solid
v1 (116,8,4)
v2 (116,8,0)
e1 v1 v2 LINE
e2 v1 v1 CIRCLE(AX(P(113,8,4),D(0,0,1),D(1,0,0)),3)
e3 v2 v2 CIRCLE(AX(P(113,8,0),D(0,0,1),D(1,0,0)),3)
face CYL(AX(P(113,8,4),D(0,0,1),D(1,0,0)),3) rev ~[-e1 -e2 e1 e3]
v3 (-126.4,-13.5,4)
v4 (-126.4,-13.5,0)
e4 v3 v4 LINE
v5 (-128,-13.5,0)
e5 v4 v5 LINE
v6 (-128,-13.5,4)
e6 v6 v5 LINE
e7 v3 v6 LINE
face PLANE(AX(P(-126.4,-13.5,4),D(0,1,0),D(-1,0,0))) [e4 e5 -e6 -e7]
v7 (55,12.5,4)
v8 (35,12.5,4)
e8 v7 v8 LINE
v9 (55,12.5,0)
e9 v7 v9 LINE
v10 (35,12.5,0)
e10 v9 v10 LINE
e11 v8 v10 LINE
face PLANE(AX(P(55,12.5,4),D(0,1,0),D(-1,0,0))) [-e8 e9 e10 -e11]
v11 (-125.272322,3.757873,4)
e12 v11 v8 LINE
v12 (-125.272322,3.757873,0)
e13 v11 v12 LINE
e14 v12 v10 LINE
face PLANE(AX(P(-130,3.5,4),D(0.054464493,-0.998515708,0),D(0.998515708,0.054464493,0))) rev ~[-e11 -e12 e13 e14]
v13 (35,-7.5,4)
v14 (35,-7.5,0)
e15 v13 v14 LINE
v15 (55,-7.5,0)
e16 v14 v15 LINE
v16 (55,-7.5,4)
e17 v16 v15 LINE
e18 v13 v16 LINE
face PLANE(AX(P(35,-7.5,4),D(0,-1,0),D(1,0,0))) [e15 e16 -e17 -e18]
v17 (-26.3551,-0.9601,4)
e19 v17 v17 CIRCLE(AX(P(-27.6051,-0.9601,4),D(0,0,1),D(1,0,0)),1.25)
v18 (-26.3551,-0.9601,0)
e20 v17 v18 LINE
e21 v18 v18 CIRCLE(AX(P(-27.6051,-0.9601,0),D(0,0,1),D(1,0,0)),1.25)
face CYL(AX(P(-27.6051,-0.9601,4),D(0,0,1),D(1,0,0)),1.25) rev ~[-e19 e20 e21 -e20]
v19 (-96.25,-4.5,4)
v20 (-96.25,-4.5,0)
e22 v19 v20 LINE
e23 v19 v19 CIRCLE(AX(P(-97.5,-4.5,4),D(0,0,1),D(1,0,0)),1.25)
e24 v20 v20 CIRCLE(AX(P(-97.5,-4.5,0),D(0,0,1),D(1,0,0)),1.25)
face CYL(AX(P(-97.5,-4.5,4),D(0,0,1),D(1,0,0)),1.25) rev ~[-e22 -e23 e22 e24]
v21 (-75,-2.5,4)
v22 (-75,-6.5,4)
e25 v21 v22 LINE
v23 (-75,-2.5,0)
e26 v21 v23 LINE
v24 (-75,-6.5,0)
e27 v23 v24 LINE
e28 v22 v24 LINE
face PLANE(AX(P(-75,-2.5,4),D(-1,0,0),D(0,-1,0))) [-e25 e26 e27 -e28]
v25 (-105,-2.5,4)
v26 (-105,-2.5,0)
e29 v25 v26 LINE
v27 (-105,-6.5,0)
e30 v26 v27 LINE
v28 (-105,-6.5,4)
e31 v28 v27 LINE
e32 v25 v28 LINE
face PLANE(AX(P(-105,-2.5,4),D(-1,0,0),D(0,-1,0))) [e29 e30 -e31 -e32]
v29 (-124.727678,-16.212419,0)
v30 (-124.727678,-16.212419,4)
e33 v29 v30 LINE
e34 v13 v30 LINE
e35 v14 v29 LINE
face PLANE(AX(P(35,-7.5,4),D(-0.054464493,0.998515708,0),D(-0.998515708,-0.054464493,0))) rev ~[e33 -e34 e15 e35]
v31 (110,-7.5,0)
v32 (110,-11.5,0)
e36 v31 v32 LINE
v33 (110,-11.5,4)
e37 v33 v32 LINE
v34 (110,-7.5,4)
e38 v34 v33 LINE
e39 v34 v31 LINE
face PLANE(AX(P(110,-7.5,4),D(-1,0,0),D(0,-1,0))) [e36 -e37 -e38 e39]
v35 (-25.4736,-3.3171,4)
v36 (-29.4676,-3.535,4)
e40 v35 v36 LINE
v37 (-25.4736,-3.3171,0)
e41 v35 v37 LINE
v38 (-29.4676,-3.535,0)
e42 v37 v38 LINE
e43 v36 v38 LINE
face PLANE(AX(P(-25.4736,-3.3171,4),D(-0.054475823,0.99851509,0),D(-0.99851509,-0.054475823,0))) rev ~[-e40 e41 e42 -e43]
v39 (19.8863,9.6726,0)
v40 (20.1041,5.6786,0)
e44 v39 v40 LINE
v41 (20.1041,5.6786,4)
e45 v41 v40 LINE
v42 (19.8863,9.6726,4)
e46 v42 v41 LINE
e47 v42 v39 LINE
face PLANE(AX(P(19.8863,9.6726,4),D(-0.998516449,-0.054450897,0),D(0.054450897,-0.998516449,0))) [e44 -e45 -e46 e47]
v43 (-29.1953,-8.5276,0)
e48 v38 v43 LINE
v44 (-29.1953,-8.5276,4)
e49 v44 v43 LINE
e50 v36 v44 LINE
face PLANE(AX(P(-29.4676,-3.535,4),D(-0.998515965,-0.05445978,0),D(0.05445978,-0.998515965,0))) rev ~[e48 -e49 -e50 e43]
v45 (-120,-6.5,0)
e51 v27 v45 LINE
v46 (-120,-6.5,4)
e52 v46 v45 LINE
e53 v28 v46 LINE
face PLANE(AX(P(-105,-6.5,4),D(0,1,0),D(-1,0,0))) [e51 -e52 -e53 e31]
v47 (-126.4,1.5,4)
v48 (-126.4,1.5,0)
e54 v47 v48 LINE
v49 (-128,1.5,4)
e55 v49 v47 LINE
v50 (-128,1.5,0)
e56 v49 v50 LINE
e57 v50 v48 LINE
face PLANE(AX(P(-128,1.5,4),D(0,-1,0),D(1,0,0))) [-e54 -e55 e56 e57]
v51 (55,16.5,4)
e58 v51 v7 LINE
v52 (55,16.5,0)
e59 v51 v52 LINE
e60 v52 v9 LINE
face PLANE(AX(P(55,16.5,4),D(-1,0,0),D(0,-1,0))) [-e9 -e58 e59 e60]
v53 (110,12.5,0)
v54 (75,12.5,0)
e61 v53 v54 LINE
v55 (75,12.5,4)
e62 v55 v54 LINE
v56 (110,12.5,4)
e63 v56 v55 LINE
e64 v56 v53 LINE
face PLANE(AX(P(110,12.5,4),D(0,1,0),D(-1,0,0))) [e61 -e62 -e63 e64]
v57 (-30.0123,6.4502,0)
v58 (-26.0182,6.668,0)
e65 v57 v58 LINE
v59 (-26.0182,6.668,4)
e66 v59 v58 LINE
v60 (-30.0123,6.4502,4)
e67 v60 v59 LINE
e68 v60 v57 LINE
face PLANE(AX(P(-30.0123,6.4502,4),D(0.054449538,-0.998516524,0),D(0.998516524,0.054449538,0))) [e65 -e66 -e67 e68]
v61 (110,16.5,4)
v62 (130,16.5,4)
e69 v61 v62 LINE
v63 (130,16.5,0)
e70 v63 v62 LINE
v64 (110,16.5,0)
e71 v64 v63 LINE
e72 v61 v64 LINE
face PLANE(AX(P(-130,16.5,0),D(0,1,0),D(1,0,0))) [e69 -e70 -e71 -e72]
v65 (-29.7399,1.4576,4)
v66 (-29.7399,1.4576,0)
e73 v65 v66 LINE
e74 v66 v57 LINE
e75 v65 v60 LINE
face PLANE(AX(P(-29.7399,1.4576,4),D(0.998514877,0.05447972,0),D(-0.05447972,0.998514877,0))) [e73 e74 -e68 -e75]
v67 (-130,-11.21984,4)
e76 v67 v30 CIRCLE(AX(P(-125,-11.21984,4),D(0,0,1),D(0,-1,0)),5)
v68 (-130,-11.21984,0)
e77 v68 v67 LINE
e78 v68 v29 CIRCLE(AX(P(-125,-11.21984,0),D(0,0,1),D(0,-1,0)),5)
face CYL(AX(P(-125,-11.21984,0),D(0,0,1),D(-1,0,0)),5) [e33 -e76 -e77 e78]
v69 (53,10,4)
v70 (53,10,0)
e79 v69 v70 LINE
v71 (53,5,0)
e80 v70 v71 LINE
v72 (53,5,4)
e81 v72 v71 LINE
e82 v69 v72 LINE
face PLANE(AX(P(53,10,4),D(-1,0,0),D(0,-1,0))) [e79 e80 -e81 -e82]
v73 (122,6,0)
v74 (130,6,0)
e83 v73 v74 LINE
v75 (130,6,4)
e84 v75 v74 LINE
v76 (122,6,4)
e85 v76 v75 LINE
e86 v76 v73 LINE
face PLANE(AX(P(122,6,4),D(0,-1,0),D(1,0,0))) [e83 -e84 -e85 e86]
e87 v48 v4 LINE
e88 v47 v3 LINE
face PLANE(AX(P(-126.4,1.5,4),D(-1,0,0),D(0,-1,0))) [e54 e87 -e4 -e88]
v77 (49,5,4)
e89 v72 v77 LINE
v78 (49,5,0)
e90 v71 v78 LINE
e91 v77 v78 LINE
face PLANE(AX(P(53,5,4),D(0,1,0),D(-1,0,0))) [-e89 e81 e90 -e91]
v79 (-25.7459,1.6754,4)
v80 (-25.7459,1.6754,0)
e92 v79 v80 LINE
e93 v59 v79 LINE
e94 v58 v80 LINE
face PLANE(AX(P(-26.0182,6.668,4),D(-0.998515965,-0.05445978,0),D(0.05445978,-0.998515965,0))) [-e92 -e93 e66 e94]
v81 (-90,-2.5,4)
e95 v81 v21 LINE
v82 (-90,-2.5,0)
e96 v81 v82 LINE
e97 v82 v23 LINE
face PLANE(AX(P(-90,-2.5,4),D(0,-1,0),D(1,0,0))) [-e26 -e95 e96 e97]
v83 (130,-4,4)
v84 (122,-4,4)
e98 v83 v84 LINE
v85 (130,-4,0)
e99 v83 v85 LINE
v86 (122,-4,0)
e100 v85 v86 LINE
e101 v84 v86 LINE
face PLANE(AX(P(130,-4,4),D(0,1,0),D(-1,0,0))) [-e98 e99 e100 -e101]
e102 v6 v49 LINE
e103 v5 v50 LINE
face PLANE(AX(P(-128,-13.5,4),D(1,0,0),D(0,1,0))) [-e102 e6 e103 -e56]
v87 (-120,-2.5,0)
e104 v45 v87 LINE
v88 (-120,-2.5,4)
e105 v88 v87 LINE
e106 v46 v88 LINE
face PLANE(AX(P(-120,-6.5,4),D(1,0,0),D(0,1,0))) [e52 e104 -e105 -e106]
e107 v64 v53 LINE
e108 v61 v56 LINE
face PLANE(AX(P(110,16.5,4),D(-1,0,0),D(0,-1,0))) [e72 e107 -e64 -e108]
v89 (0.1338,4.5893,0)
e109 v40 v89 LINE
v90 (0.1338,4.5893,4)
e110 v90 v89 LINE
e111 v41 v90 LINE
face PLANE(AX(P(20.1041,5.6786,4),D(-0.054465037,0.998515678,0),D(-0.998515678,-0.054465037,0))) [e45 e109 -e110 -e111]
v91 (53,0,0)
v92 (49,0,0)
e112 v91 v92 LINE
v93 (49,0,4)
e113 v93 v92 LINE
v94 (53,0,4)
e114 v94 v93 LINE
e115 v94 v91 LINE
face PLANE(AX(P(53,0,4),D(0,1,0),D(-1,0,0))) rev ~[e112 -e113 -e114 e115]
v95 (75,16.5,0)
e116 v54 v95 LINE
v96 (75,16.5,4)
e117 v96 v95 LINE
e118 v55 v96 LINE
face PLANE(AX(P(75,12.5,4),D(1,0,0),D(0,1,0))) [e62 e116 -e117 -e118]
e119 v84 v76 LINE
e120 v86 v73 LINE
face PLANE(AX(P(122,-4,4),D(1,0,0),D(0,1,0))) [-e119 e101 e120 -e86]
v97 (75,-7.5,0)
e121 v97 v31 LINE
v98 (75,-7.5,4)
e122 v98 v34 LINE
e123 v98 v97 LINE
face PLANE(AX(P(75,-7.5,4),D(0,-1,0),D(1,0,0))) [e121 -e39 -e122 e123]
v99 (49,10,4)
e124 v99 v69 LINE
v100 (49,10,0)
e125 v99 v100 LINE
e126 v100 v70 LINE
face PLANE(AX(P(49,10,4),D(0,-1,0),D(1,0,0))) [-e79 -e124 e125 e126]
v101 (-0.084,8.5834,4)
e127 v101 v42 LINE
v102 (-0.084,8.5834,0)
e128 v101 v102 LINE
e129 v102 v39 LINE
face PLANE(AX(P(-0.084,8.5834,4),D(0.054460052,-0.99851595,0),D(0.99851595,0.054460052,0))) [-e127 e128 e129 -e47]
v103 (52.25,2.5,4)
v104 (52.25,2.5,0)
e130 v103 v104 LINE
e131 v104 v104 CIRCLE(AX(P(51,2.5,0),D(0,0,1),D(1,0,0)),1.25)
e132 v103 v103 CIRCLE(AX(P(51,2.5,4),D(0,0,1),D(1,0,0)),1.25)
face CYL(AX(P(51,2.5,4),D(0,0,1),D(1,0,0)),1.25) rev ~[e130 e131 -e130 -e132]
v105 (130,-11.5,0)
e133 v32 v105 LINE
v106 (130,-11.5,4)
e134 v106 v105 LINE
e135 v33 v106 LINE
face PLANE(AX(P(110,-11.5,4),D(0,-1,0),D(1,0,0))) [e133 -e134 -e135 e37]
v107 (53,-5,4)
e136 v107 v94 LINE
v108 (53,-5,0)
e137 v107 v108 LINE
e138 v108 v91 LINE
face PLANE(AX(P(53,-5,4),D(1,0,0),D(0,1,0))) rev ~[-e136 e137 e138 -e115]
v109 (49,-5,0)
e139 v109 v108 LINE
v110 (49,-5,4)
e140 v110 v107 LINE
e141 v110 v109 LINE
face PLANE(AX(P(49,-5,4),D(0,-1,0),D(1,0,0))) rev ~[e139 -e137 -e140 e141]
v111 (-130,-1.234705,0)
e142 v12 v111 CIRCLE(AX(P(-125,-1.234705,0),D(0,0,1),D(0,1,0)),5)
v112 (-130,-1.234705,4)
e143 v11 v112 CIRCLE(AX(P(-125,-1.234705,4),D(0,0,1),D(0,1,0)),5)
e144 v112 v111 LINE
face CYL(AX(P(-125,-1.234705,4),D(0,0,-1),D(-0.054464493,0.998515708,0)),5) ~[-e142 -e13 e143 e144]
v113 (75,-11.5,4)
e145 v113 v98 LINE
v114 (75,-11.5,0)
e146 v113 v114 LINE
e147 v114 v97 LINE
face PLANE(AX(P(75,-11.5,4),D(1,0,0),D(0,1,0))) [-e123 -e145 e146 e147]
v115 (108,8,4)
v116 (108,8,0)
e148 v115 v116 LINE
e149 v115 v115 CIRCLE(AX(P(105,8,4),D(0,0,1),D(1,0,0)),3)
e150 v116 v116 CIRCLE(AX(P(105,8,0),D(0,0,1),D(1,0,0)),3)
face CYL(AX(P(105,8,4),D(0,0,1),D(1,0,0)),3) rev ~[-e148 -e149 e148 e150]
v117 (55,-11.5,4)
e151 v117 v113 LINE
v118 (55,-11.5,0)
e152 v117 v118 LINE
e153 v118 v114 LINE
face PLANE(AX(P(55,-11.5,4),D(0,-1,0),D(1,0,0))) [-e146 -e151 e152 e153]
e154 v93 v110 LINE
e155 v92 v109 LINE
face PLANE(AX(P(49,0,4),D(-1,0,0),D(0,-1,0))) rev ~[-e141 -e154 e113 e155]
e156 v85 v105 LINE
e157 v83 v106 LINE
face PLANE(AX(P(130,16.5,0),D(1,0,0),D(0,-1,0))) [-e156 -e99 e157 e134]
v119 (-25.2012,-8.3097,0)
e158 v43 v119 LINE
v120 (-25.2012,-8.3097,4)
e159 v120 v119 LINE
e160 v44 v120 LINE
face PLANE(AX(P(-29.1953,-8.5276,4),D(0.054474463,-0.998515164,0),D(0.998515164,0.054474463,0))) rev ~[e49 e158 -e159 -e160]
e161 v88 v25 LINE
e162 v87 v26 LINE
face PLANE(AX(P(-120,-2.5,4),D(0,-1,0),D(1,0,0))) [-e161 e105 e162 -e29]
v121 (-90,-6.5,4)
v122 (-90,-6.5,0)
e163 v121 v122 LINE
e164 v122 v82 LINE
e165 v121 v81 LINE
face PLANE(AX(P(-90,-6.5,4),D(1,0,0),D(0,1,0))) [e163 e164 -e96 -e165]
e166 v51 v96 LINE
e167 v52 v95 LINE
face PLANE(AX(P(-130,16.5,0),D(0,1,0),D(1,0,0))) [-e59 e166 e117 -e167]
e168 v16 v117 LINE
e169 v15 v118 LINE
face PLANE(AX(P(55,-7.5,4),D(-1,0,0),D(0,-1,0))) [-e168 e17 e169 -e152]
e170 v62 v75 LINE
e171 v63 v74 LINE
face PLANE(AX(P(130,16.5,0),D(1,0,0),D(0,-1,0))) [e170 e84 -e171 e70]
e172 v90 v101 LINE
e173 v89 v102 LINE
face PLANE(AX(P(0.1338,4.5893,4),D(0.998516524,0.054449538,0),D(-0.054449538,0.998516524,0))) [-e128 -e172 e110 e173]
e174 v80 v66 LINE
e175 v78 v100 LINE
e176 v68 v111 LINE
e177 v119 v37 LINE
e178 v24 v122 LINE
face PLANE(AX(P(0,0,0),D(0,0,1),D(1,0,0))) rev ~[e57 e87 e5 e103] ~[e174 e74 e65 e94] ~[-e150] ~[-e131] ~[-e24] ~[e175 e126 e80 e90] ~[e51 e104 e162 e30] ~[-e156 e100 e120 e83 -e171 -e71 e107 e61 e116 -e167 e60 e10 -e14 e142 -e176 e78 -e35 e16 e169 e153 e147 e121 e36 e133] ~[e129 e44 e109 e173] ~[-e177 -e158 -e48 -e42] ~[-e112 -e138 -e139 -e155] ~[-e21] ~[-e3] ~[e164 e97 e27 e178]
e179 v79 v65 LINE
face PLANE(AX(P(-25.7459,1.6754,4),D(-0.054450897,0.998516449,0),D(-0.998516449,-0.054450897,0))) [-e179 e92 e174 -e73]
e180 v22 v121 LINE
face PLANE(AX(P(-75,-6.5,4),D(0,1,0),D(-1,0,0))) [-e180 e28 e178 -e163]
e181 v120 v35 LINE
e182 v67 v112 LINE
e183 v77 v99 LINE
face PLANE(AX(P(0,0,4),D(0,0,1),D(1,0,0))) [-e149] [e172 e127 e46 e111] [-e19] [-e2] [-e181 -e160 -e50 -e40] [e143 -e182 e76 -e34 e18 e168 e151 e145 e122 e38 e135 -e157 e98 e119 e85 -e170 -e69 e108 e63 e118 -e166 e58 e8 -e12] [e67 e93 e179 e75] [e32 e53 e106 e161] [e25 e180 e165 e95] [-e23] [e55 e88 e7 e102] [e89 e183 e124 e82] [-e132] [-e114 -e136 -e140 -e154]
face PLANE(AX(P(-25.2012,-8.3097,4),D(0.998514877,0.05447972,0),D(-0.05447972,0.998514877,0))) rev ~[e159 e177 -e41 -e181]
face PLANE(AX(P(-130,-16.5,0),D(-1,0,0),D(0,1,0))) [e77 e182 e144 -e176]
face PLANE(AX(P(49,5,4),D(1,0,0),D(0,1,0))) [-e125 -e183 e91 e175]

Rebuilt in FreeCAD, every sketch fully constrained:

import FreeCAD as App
import Part
import Sketcher
Q = App.Units.Quantity


def edges_at(feature, points):
    """Names of the edges that pass closest to the given points."""
    edges = feature.Shape.Edges
    near = lambda p: min(range(len(edges)), key=lambda i: edges[i].distToShape(Part.Vertex(*p))[0])
    return sorted({f"Edge{near(p) + 1}" for p in points})

doc = App.newDocument("Part")
body = doc.addObject("PartDesign::Body", "Body")

# Sketch on XY plane
sketch1 = doc.addObject("Sketcher::SketchObject", "Sketch")
body.addObject(sketch1)
sketch1.AttachmentSupport = (doc.XY_Plane, [""])
sketch1.MapMode = "FlatFace"
sketch1.addGeometry([
    Part.LineSegment(App.Vector(130, 16, 0), App.Vector(-130, 16, 0)),
    Part.LineSegment(App.Vector(-130, 16, 0), App.Vector(-130, -16, 0)),
    Part.LineSegment(App.Vector(-130, -16, 0), App.Vector(130, -16, 0)),
    Part.LineSegment(App.Vector(130, -16, 0), App.Vector(130, 16, 0)),
], False)
sketch1.addConstraint([
    Sketcher.Constraint("Coincident", 0, 2, 1, 1),
    Sketcher.Constraint("Coincident", 1, 2, 2, 1),
    Sketcher.Constraint("Coincident", 2, 2, 3, 1),
    Sketcher.Constraint("Coincident", 3, 2, 0, 1),
    Sketcher.Constraint("Horizontal", 0),
    Sketcher.Constraint("Vertical", 1),
    Sketcher.Constraint("Horizontal", 2),
    Sketcher.Constraint("Vertical", 3),
    Sketcher.Constraint("Symmetric", 0, 2, 2, 2, -1, 1),
    Sketcher.Constraint("DistanceX", 0, 2, 0, 1, Q("260 mm")),
    Sketcher.Constraint("DistanceY", 1, 2, 1, 1, Q("33 mm")),
])
pad1 = doc.addObject("PartDesign::Pad", "Pad")
body.addObject(pad1)
pad1.Profile = sketch1
pad1.Length = 4

# Sketch on XY plane
sketch2 = doc.addObject("Sketcher::SketchObject", "Sketch001")
body.addObject(sketch2)
sketch2.AttachmentSupport = (doc.XY_Plane, [""])
sketch2.MapMode = "FlatFace"
sketch2.AttachmentOffset = App.Placement(App.Vector(0, 0, 4), App.Rotation())
sketch2.addGeometry([
    Part.LineSegment(App.Vector(130, -16.5, 0), App.Vector(130, -11.5, 0)),  # 0
    Part.LineSegment(App.Vector(130, -11.5, 0), App.Vector(110, -11.5, 0)),  # 1
    Part.LineSegment(App.Vector(110, -11.5, 0), App.Vector(110, -7.5, 0)),  # 2
    Part.LineSegment(App.Vector(110, -7.5, 0), App.Vector(75, -7.5, 0)),  # 3
    Part.LineSegment(App.Vector(75, -7.5, 0), App.Vector(75, -11.5, 0)),  # 4
    Part.LineSegment(App.Vector(75, -11.5, 0), App.Vector(55, -11.5, 0)),  # 5
    Part.LineSegment(App.Vector(55, -11.5, 0), App.Vector(55, -7.5, 0)),  # 6
    Part.LineSegment(App.Vector(55, -7.5, 0), App.Vector(35, -7.5, 0)),  # 7
    Part.LineSegment(App.Vector(35, -7.5, 0), App.Vector(35, -16.5, 0)),  # 8
    Part.LineSegment(App.Vector(35, -16.5, 0), App.Vector(130, -16.5, 0)),  # 9
    Part.LineSegment(App.Vector(110, 12.5, 0), App.Vector(110, 16.5, 0)),  # 10
    Part.LineSegment(App.Vector(110, 16.5, 0), App.Vector(75, 16.5, 0)),  # 11
    Part.LineSegment(App.Vector(75, 16.5, 0), App.Vector(75, 12.5, 0)),  # 12
    Part.LineSegment(App.Vector(75, 12.5, 0), App.Vector(110, 12.5, 0)),  # 13
    Part.LineSegment(App.Vector(55, 12.5, 0), App.Vector(55, 16.5, 0)),  # 14
    Part.LineSegment(App.Vector(55, 16.5, 0), App.Vector(-130, 16.5, 0)),  # 15
    Part.LineSegment(App.Vector(-130, 16.5, 0), App.Vector(-130, 12.5, 0)),  # 16
    Part.LineSegment(App.Vector(-130, 12.5, 0), App.Vector(55, 12.5, 0)),  # 17
], False)
sketch2.addConstraint([
    Sketcher.Constraint("Coincident", 0, 2, 1, 1),
    Sketcher.Constraint("Coincident", 1, 2, 2, 1),
    Sketcher.Constraint("Coincident", 2, 2, 3, 1),
    Sketcher.Constraint("Coincident", 3, 2, 4, 1),
    Sketcher.Constraint("Coincident", 4, 2, 5, 1),
    Sketcher.Constraint("Coincident", 5, 2, 6, 1),
    Sketcher.Constraint("Coincident", 6, 2, 7, 1),
    Sketcher.Constraint("Coincident", 7, 2, 8, 1),
    Sketcher.Constraint("Coincident", 8, 2, 9, 1),
    Sketcher.Constraint("Coincident", 9, 2, 0, 1),
    Sketcher.Constraint("Coincident", 10, 2, 11, 1),
    Sketcher.Constraint("Coincident", 11, 2, 12, 1),
    Sketcher.Constraint("Coincident", 12, 2, 13, 1),
    Sketcher.Constraint("Coincident", 13, 2, 10, 1),
    Sketcher.Constraint("Coincident", 14, 2, 15, 1),
    Sketcher.Constraint("Coincident", 15, 2, 16, 1),
    Sketcher.Constraint("Coincident", 16, 2, 17, 1),
    Sketcher.Constraint("Coincident", 17, 2, 14, 1),
    Sketcher.Constraint("Vertical", 0),
    Sketcher.Constraint("Horizontal", 1),
    Sketcher.Constraint("Vertical", 2),
    Sketcher.Constraint("Horizontal", 3),
    Sketcher.Constraint("Vertical", 4),
    Sketcher.Constraint("Horizontal", 5),
    Sketcher.Constraint("Vertical", 6),
    Sketcher.Constraint("Horizontal", 7),
    Sketcher.Constraint("Vertical", 8),
    Sketcher.Constraint("Horizontal", 9),
    Sketcher.Constraint("Vertical", 10),
    Sketcher.Constraint("Horizontal", 11),
    Sketcher.Constraint("Vertical", 12),
    Sketcher.Constraint("Horizontal", 13),
    Sketcher.Constraint("Vertical", 14),
    Sketcher.Constraint("Horizontal", 15),
    Sketcher.Constraint("Vertical", 16),
    Sketcher.Constraint("Horizontal", 17),
    Sketcher.Constraint("Symmetric", 9, 2, 15, 2, -1, 1),
    Sketcher.Constraint("Horizontal", 1, 2, 4, 2),
    Sketcher.Constraint("Horizontal", 3, 2, 6, 2),
    Sketcher.Constraint("Horizontal", 11, 2, 14, 2),
    Sketcher.Constraint("Horizontal", 13, 2, 16, 2),
    Sketcher.Constraint("Vertical", 2, 2, 10, 2),
    Sketcher.Constraint("Vertical", 4, 2, 11, 2),
    Sketcher.Constraint("Vertical", 6, 2, 14, 2),
    Sketcher.Constraint("Equal", 1, 5),
    Sketcher.Constraint("Equal", 5, 7),
    Sketcher.Constraint("Equal", 6, 10),
    Sketcher.Constraint("DistanceX", 1, 2, 1, 1, Q("20 mm")),
    Sketcher.Constraint("DistanceX", 3, 2, 3, 1, Q("35 mm")),
    Sketcher.Constraint("DistanceX", 15, 2, 15, 1, Q("185 mm")),
    Sketcher.Constraint("DistanceY", 0, 1, 0, 2, Q("5 mm")),
    Sketcher.Constraint("DistanceY", 2, 1, 2, 2, Q("4 mm")),
    Sketcher.Constraint("DistanceY", 3, 2, 12, 2, Q("20 mm")),
])
pocket1 = doc.addObject("PartDesign::Pocket", "Pocket")
body.addObject(pocket1)
pocket1.Profile = sketch2
pocket1.Length = 4

# Sketch on XY plane
sketch3 = doc.addObject("Sketcher::SketchObject", "Sketch002")
body.addObject(sketch3)
sketch3.AttachmentSupport = (doc.XY_Plane, [""])
sketch3.MapMode = "FlatFace"
sketch3.AttachmentOffset = App.Placement(App.Vector(0, 0, 4), App.Rotation())
sketch3.addGeometry([
    Part.LineSegment(App.Vector(-130, 4, 0), App.Vector(35, 12, 0)),  # 0
    Part.LineSegment(App.Vector(35, 12, 0), App.Vector(-130, 12, 0)),  # 1
    Part.LineSegment(App.Vector(-130, 12, 0), App.Vector(-130, 4, 0)),  # 2
    Part.LineSegment(App.Vector(35, -8, 0), App.Vector(-130, -16, 0)),  # 3
    Part.LineSegment(App.Vector(-130, -16, 0), App.Vector(35, -16, 0)),  # 4
    Part.LineSegment(App.Vector(35, -16, 0), App.Vector(35, -8, 0)),  # 5
], False)
sketch3.addConstraint([
    Sketcher.Constraint("Coincident", 0, 2, 1, 1),
    Sketcher.Constraint("Coincident", 1, 2, 2, 1),
    Sketcher.Constraint("Coincident", 2, 2, 0, 1),
    Sketcher.Constraint("Coincident", 3, 2, 4, 1),
    Sketcher.Constraint("Coincident", 4, 2, 5, 1),
    Sketcher.Constraint("Coincident", 5, 2, 3, 1),
    Sketcher.Constraint("Horizontal", 1),
    Sketcher.Constraint("Vertical", 2),
    Sketcher.Constraint("Horizontal", 4),
    Sketcher.Constraint("Vertical", 5),
    Sketcher.Constraint("Parallel", 0, 3),
    Sketcher.Constraint("Vertical", 2, 2, 3, 2),
    Sketcher.Constraint("Vertical", 0, 2, 4, 2),
    Sketcher.Constraint("DistanceY", 3, 2, 2, 2, Q("20 mm")),
    Sketcher.Constraint("DistanceX", 1, 2, 1, 1, Q("165 mm")),
    Sketcher.Constraint("DistanceY", 2, 2, 2, 1, Q("9 mm")),
    Sketcher.Constraint("DistanceX", -1, 1, 0, 2, Q("35 mm")),
    Sketcher.Constraint("DistanceY", -1, 1, 0, 2, Q("12.5 mm")),
])
pocket2 = doc.addObject("PartDesign::Pocket", "Pocket001")
body.addObject(pocket2)
pocket2.Profile = sketch3
pocket2.Length = 4

# Sketch on XY plane
sketch4 = doc.addObject("Sketcher::SketchObject", "Sketch003")
body.addObject(sketch4)
sketch4.AttachmentSupport = (doc.XY_Plane, [""])
sketch4.MapMode = "FlatFace"
sketch4.AttachmentOffset = App.Placement(App.Vector(0, 0, 4), App.Rotation())
sketch4.addGeometry([
    Part.LineSegment(App.Vector(-105, -2.5, 0), App.Vector(-120, -2.5, 0)),  # 0
    Part.LineSegment(App.Vector(-120, -2.5, 0), App.Vector(-120, -6.5, 0)),  # 1
    Part.LineSegment(App.Vector(-120, -6.5, 0), App.Vector(-105, -6.5, 0)),  # 2
    Part.LineSegment(App.Vector(-105, -6.5, 0), App.Vector(-105, -2.5, 0)),  # 3
    Part.LineSegment(App.Vector(-75, -2.5, 0), App.Vector(-90, -2.5, 0)),  # 4
    Part.LineSegment(App.Vector(-90, -2.5, 0), App.Vector(-90, -6.5, 0)),  # 5
    Part.LineSegment(App.Vector(-90, -6.5, 0), App.Vector(-75, -6.5, 0)),  # 6
    Part.LineSegment(App.Vector(-75, -6.5, 0), App.Vector(-75, -2.5, 0)),  # 7
    Part.Circle(App.Vector(-97.5, -4.5, 0), App.Vector(0, 0, 1), 1.2),  # 8
], False)
sketch4.addConstraint([
    Sketcher.Constraint("Coincident", 0, 2, 1, 1),
    Sketcher.Constraint("Coincident", 1, 2, 2, 1),
    Sketcher.Constraint("Coincident", 2, 2, 3, 1),
    Sketcher.Constraint("Coincident", 3, 2, 0, 1),
    Sketcher.Constraint("Coincident", 4, 2, 5, 1),
    Sketcher.Constraint("Coincident", 5, 2, 6, 1),
    Sketcher.Constraint("Coincident", 6, 2, 7, 1),
    Sketcher.Constraint("Coincident", 7, 2, 4, 1),
    Sketcher.Constraint("Horizontal", 0),
    Sketcher.Constraint("Vertical", 1),
    Sketcher.Constraint("Horizontal", 2),
    Sketcher.Constraint("Vertical", 3),
    Sketcher.Constraint("Horizontal", 4),
    Sketcher.Constraint("Vertical", 5),
    Sketcher.Constraint("Horizontal", 6),
    Sketcher.Constraint("Vertical", 7),
    Sketcher.Constraint("Horizontal", 3, 2, 4, 2),
    Sketcher.Constraint("Horizontal", 2, 2, 5, 2),
    Sketcher.Constraint("Equal", 2, 4),
    Sketcher.Constraint("Diameter", 8, Q("2.5 mm")),
    Sketcher.Constraint("DistanceX", 0, 2, 0, 1, Q("15 mm")),
    Sketcher.Constraint("DistanceY", 1, 2, 1, 1, Q("4 mm")),
    Sketcher.Constraint("DistanceY", 8, 3, 0, 2, Q("2 mm")),
    Sketcher.Constraint("DistanceX", 3, 2, 4, 2, Q("15 mm")),
    Sketcher.Constraint("DistanceY", 0, 2, -1, 1, Q("2.5 mm")),
    Sketcher.Constraint("DistanceX", 2, 2, 8, 3, Q("7.5 mm")),
    Sketcher.Constraint("DistanceX", 0, 2, -1, 1, Q("120 mm")),
])
pocket3 = doc.addObject("PartDesign::Pocket", "Pocket002")
body.addObject(pocket3)
pocket3.Profile = sketch4
pocket3.Length = 4

# Sketch on XY plane
sketch5 = doc.addObject("Sketcher::SketchObject", "Sketch004")
body.addObject(sketch5)
sketch5.AttachmentSupport = (doc.XY_Plane, [""])
sketch5.MapMode = "FlatFace"
sketch5.AttachmentOffset = App.Placement(App.Vector(0, 0, 4), App.Rotation())
sketch5.addGeometry([
    Part.LineSegment(App.Vector(130, -4, 0), App.Vector(130, 6, 0)),
    Part.LineSegment(App.Vector(130, 6, 0), App.Vector(122, 6, 0)),
    Part.LineSegment(App.Vector(122, 6, 0), App.Vector(122, -4, 0)),
    Part.LineSegment(App.Vector(122, -4, 0), App.Vector(130, -4, 0)),
], False)
sketch5.addConstraint([
    Sketcher.Constraint("Coincident", 0, 2, 1, 1),
    Sketcher.Constraint("Coincident", 1, 2, 2, 1),
    Sketcher.Constraint("Coincident", 2, 2, 3, 1),
    Sketcher.Constraint("Coincident", 3, 2, 0, 1),
    Sketcher.Constraint("Vertical", 0),
    Sketcher.Constraint("Horizontal", 1),
    Sketcher.Constraint("Vertical", 2),
    Sketcher.Constraint("Horizontal", 3),
    Sketcher.Constraint("DistanceX", 1, 2, 1, 1, Q("8 mm")),
    Sketcher.Constraint("DistanceY", 0, 1, 0, 2, Q("10 mm")),
    Sketcher.Constraint("DistanceY", 2, 2, -1, 1, Q("4 mm")),
    Sketcher.Constraint("DistanceX", -1, 1, 0, 2, Q("130 mm")),
])
pocket4 = doc.addObject("PartDesign::Pocket", "Pocket003")
body.addObject(pocket4)
pocket4.Profile = sketch5
pocket4.Length = 4

# Sketch on XY plane
sketch6 = doc.addObject("Sketcher::SketchObject", "Sketch005")
body.addObject(sketch6)
sketch6.AttachmentSupport = (doc.XY_Plane, [""])
sketch6.MapMode = "FlatFace"
sketch6.AttachmentOffset = App.Placement(App.Vector(0, 0, 4), App.Rotation())
sketch6.addGeometry([
    Part.LineSegment(App.Vector(19.9, 9.7, 0), App.Vector(-0.1, 8.6, 0)),
    Part.LineSegment(App.Vector(-0.1, 8.6, 0), App.Vector(0.1, 4.6, 0)),
    Part.LineSegment(App.Vector(0.1, 4.6, 0), App.Vector(20.1, 5.7, 0)),
    Part.LineSegment(App.Vector(20.1, 5.7, 0), App.Vector(19.9, 9.7, 0)),
], False)
sketch6.addConstraint([
    Sketcher.Constraint("Coincident", 0, 2, 1, 1),
    Sketcher.Constraint("Coincident", 1, 2, 2, 1),
    Sketcher.Constraint("Coincident", 2, 2, 3, 1),
    Sketcher.Constraint("Coincident", 3, 2, 0, 1),
    Sketcher.Constraint("Perpendicular", 0, 1),
    Sketcher.Constraint("Perpendicular", 1, 2),
    Sketcher.Constraint("Perpendicular", 2, 3),
    Sketcher.Constraint("Distance", 0, Q("20 mm")),
    Sketcher.Constraint("Distance", 1, Q("4 mm")),
    Sketcher.Constraint("DistanceX", 0, 2, -1, 1, Q("0.084 mm")),
    Sketcher.Constraint("DistanceX", -1, 1, 2, 2, Q("20.104 mm")),
    Sketcher.Constraint("DistanceY", -1, 1, 0, 2, Q("8.5834 mm")),
])
pocket5 = doc.addObject("PartDesign::Pocket", "Pocket004")
body.addObject(pocket5)
pocket5.Profile = sketch6
pocket5.Length = 4

# Sketch on XY plane
sketch7 = doc.addObject("Sketcher::SketchObject", "Sketch006")
body.addObject(sketch7)
sketch7.AttachmentSupport = (doc.XY_Plane, [""])
sketch7.MapMode = "FlatFace"
sketch7.AttachmentOffset = App.Placement(App.Vector(0, 0, 4), App.Rotation())
sketch7.addGeometry([
    Part.LineSegment(App.Vector(-26.0182, 6.668, 0), App.Vector(-30.0123, 6.4502, 0)),  # 0
    Part.LineSegment(App.Vector(-30.0123, 6.4502, 0), App.Vector(-29.7399, 1.4576, 0)),  # 1
    Part.LineSegment(App.Vector(-29.7399, 1.4576, 0), App.Vector(-25.7459, 1.6754, 0)),  # 2
    Part.LineSegment(App.Vector(-25.7459, 1.6754, 0), App.Vector(-26.0182, 6.668, 0)),  # 3
    Part.LineSegment(App.Vector(-29.4676, -3.535, 0), App.Vector(-29.1953, -8.5276, 0)),  # 4
    Part.LineSegment(App.Vector(-29.1953, -8.5276, 0), App.Vector(-25.2012, -8.3097, 0)),  # 5
    Part.LineSegment(App.Vector(-25.2012, -8.3097, 0), App.Vector(-25.4736, -3.3171, 0)),  # 6
    Part.LineSegment(App.Vector(-25.4736, -3.3171, 0), App.Vector(-29.4676, -3.535, 0)),  # 7
    Part.Circle(App.Vector(-27.6051, -0.9601, 0), App.Vector(0, 0, 1), 1.25),  # 8
    Part.LineSegment(App.Vector(53, 10, 0), App.Vector(49, 10, 0)),  # 9
    Part.LineSegment(App.Vector(49, 10, 0), App.Vector(49, 5, 0)),  # 10
    Part.LineSegment(App.Vector(49, 5, 0), App.Vector(53, 5, 0)),  # 11
    Part.LineSegment(App.Vector(53, 5, 0), App.Vector(53, 10, 0)),  # 12
    Part.LineSegment(App.Vector(49, 0, 0), App.Vector(49, -5, 0)),  # 13
    Part.LineSegment(App.Vector(49, -5, 0), App.Vector(53, -5, 0)),  # 14
    Part.LineSegment(App.Vector(53, -5, 0), App.Vector(53, 0, 0)),  # 15
    Part.LineSegment(App.Vector(53, 0, 0), App.Vector(49, 0, 0)),  # 16
    Part.Circle(App.Vector(51, 2.5, 0), App.Vector(0, 0, 1), 1.25),  # 17
], False)
sketch7.addConstraint([
    Sketcher.Constraint("Coincident", 0, 2, 1, 1),
    Sketcher.Constraint("Coincident", 1, 2, 2, 1),
    Sketcher.Constraint("Coincident", 2, 2, 3, 1),
    Sketcher.Constraint("Coincident", 3, 2, 0, 1),
    Sketcher.Constraint("Coincident", 4, 2, 5, 1),
    Sketcher.Constraint("Coincident", 5, 2, 6, 1),
    Sketcher.Constraint("Coincident", 6, 2, 7, 1),
    Sketcher.Constraint("Coincident", 7, 2, 4, 1),
    Sketcher.Constraint("Coincident", 9, 2, 10, 1),
    Sketcher.Constraint("Coincident", 10, 2, 11, 1),
    Sketcher.Constraint("Coincident", 11, 2, 12, 1),
    Sketcher.Constraint("Coincident", 12, 2, 9, 1),
    Sketcher.Constraint("Coincident", 13, 2, 14, 1),
    Sketcher.Constraint("Coincident", 14, 2, 15, 1),
    Sketcher.Constraint("Coincident", 15, 2, 16, 1),
    Sketcher.Constraint("Coincident", 16, 2, 13, 1),
    Sketcher.Constraint("Horizontal", 9),
    Sketcher.Constraint("Vertical", 10),
    Sketcher.Constraint("Horizontal", 11),
    Sketcher.Constraint("Vertical", 12),
    Sketcher.Constraint("Vertical", 13),
    Sketcher.Constraint("Horizontal", 14),
    Sketcher.Constraint("Vertical", 15),
    Sketcher.Constraint("Horizontal", 16),
    Sketcher.Constraint("PointOnObject", 15, 2, -1),
    Sketcher.Constraint("Diameter", 8, Q("2.5 mm")),
    Sketcher.Constraint("Diameter", 17, Q("2.5 mm")),
    Sketcher.Constraint("DistanceX", 9, 2, 9, 1, Q("4 mm")),
    Sketcher.Constraint("DistanceX", 14, 1, 14, 2, Q("4 mm")),
    Sketcher.Constraint("DistanceY", 10, 2, 10, 1, Q("5 mm")),
    Sketcher.Constraint("DistanceY", 13, 2, 13, 1, Q("5 mm")),
    Sketcher.Constraint("Distance", 0, Q("4 mm")),
    Sketcher.Constraint("Distance", 1, Q("5 mm")),
    Sketcher.Constraint("Distance", 2, Q("4 mm")),
    Sketcher.Constraint("Distance", 3, Q("5 mm")),
    Sketcher.Constraint("Distance", 4, Q("5 mm")),
    Sketcher.Constraint("Distance", 5, Q("4 mm")),
    Sketcher.Constraint("Distance", 6, Q("5 mm")),
    Sketcher.Constraint("Distance", 7, Q("4 mm")),
    Sketcher.Constraint("DistanceY", -1, 1, 9, 2, Q("10 mm")),
    Sketcher.Constraint("DistanceX", 9, 2, 17, 3, Q("2 mm")),
    Sketcher.Constraint("DistanceX", 13, 2, 17, 3, Q("2 mm")),
    Sketcher.Constraint("DistanceY", -1, 1, 17, 3, Q("2.5 mm")),
    Sketcher.Constraint("DistanceX", -1, 1, 17, 3, Q("51 mm")),
    Sketcher.Constraint("DistanceY", 8, 3, -1, 1, Q("0.96 mm")),
    Sketcher.Constraint("DistanceX", 1, 2, -1, 1, Q("29.74 mm")),
    Sketcher.Constraint("DistanceX", 8, 3, -1, 1, Q("27.605 mm")),
    Sketcher.Constraint("DistanceX", 2, 2, -1, 1, Q("25.746 mm")),
    Sketcher.Constraint("DistanceY", -1, 1, 3, 2, Q("6.668 mm")),
    Sketcher.Constraint("DistanceY", 6, 2, -1, 1, Q("3.317 mm")),
    Sketcher.Constraint("DistanceY", 7, 2, -1, 1, Q("3.535 mm")),
    Sketcher.Constraint("DistanceX", 8, 3, 3, 2, Q("1.587 mm")),
    Sketcher.Constraint("DistanceY", 4, 2, 2, 2, Q("10.203 mm")),
    Sketcher.Constraint("DistanceX", 0, 2, 4, 2, Q("0.817 mm")),
])
pocket6 = doc.addObject("PartDesign::Pocket", "Pocket005")
body.addObject(pocket6)
pocket6.Profile = sketch7
pocket6.Length = 10

# Sketch on XY plane
sketch8 = doc.addObject("Sketcher::SketchObject", "Sketch007")
body.addObject(sketch8)
sketch8.AttachmentSupport = (doc.XY_Plane, [""])
sketch8.MapMode = "FlatFace"
sketch8.AttachmentOffset = App.Placement(App.Vector(0, 0, 4), App.Rotation())
sketch8.addGeometry([
    Part.Circle(App.Vector(113, 8, 0), App.Vector(0, 0, 1), 3),
    Part.Circle(App.Vector(105, 8, 0), App.Vector(0, 0, 1), 3),
], False)
sketch8.addConstraint([
    Sketcher.Constraint("Equal", 0, 1),
    Sketcher.Constraint("Horizontal", 0, 3, 1, 3),
    Sketcher.Constraint("Diameter", 0, Q("6 mm")),
    Sketcher.Constraint("DistanceY", -1, 1, 0, 3, Q("8 mm")),
    Sketcher.Constraint("DistanceX", 1, 3, 0, 3, Q("8 mm")),
    Sketcher.Constraint("DistanceX", -1, 1, 0, 3, Q("113 mm")),
])
pocket7 = doc.addObject("PartDesign::Pocket", "Pocket006")
body.addObject(pocket7)
pocket7.Profile = sketch8
pocket7.Length = 10

# Sketch on XY plane
sketch9 = doc.addObject("Sketcher::SketchObject", "Sketch008")
body.addObject(sketch9)
sketch9.AttachmentSupport = (doc.XY_Plane, [""])
sketch9.MapMode = "FlatFace"
sketch9.AttachmentOffset = App.Placement(App.Vector(0, 0, 4), App.Rotation())
sketch9.addGeometry([
    Part.LineSegment(App.Vector(-126.4, 1.5, 0), App.Vector(-128, 1.5, 0)),
    Part.LineSegment(App.Vector(-128, 1.5, 0), App.Vector(-128, -13.5, 0)),
    Part.LineSegment(App.Vector(-128, -13.5, 0), App.Vector(-126.4, -13.5, 0)),
    Part.LineSegment(App.Vector(-126.4, -13.5, 0), App.Vector(-126.4, 1.5, 0)),
], False)
sketch9.addConstraint([
    Sketcher.Constraint("Coincident", 0, 2, 1, 1),
    Sketcher.Constraint("Coincident", 1, 2, 2, 1),
    Sketcher.Constraint("Coincident", 2, 2, 3, 1),
    Sketcher.Constraint("Coincident", 3, 2, 0, 1),
    Sketcher.Constraint("Horizontal", 0),
    Sketcher.Constraint("Vertical", 1),
    Sketcher.Constraint("Horizontal", 2),
    Sketcher.Constraint("Vertical", 3),
    Sketcher.Constraint("DistanceY", 1, 2, 1, 1, Q("15 mm")),
    Sketcher.Constraint("DistanceX", 0, 2, 0, 1, Q("1.6 mm")),
    Sketcher.Constraint("DistanceX", 0, 2, -1, 1, Q("128 mm")),
    Sketcher.Constraint("DistanceY", -1, 1, 0, 2, Q("1.5 mm")),
])
pocket8 = doc.addObject("PartDesign::Pocket", "Pocket007")
body.addObject(pocket8)
pocket8.Profile = sketch9
pocket8.Length = 10
doc.recompute()

fillet = doc.addObject("PartDesign::Fillet", "Fillet")
body.addObject(fillet)
fillet.Base = (pocket8, edges_at(pocket8, [(-130, 3.5, 2), (-130, -16.5, 2)]))
fillet.Radius = 5

doc.recompute()
